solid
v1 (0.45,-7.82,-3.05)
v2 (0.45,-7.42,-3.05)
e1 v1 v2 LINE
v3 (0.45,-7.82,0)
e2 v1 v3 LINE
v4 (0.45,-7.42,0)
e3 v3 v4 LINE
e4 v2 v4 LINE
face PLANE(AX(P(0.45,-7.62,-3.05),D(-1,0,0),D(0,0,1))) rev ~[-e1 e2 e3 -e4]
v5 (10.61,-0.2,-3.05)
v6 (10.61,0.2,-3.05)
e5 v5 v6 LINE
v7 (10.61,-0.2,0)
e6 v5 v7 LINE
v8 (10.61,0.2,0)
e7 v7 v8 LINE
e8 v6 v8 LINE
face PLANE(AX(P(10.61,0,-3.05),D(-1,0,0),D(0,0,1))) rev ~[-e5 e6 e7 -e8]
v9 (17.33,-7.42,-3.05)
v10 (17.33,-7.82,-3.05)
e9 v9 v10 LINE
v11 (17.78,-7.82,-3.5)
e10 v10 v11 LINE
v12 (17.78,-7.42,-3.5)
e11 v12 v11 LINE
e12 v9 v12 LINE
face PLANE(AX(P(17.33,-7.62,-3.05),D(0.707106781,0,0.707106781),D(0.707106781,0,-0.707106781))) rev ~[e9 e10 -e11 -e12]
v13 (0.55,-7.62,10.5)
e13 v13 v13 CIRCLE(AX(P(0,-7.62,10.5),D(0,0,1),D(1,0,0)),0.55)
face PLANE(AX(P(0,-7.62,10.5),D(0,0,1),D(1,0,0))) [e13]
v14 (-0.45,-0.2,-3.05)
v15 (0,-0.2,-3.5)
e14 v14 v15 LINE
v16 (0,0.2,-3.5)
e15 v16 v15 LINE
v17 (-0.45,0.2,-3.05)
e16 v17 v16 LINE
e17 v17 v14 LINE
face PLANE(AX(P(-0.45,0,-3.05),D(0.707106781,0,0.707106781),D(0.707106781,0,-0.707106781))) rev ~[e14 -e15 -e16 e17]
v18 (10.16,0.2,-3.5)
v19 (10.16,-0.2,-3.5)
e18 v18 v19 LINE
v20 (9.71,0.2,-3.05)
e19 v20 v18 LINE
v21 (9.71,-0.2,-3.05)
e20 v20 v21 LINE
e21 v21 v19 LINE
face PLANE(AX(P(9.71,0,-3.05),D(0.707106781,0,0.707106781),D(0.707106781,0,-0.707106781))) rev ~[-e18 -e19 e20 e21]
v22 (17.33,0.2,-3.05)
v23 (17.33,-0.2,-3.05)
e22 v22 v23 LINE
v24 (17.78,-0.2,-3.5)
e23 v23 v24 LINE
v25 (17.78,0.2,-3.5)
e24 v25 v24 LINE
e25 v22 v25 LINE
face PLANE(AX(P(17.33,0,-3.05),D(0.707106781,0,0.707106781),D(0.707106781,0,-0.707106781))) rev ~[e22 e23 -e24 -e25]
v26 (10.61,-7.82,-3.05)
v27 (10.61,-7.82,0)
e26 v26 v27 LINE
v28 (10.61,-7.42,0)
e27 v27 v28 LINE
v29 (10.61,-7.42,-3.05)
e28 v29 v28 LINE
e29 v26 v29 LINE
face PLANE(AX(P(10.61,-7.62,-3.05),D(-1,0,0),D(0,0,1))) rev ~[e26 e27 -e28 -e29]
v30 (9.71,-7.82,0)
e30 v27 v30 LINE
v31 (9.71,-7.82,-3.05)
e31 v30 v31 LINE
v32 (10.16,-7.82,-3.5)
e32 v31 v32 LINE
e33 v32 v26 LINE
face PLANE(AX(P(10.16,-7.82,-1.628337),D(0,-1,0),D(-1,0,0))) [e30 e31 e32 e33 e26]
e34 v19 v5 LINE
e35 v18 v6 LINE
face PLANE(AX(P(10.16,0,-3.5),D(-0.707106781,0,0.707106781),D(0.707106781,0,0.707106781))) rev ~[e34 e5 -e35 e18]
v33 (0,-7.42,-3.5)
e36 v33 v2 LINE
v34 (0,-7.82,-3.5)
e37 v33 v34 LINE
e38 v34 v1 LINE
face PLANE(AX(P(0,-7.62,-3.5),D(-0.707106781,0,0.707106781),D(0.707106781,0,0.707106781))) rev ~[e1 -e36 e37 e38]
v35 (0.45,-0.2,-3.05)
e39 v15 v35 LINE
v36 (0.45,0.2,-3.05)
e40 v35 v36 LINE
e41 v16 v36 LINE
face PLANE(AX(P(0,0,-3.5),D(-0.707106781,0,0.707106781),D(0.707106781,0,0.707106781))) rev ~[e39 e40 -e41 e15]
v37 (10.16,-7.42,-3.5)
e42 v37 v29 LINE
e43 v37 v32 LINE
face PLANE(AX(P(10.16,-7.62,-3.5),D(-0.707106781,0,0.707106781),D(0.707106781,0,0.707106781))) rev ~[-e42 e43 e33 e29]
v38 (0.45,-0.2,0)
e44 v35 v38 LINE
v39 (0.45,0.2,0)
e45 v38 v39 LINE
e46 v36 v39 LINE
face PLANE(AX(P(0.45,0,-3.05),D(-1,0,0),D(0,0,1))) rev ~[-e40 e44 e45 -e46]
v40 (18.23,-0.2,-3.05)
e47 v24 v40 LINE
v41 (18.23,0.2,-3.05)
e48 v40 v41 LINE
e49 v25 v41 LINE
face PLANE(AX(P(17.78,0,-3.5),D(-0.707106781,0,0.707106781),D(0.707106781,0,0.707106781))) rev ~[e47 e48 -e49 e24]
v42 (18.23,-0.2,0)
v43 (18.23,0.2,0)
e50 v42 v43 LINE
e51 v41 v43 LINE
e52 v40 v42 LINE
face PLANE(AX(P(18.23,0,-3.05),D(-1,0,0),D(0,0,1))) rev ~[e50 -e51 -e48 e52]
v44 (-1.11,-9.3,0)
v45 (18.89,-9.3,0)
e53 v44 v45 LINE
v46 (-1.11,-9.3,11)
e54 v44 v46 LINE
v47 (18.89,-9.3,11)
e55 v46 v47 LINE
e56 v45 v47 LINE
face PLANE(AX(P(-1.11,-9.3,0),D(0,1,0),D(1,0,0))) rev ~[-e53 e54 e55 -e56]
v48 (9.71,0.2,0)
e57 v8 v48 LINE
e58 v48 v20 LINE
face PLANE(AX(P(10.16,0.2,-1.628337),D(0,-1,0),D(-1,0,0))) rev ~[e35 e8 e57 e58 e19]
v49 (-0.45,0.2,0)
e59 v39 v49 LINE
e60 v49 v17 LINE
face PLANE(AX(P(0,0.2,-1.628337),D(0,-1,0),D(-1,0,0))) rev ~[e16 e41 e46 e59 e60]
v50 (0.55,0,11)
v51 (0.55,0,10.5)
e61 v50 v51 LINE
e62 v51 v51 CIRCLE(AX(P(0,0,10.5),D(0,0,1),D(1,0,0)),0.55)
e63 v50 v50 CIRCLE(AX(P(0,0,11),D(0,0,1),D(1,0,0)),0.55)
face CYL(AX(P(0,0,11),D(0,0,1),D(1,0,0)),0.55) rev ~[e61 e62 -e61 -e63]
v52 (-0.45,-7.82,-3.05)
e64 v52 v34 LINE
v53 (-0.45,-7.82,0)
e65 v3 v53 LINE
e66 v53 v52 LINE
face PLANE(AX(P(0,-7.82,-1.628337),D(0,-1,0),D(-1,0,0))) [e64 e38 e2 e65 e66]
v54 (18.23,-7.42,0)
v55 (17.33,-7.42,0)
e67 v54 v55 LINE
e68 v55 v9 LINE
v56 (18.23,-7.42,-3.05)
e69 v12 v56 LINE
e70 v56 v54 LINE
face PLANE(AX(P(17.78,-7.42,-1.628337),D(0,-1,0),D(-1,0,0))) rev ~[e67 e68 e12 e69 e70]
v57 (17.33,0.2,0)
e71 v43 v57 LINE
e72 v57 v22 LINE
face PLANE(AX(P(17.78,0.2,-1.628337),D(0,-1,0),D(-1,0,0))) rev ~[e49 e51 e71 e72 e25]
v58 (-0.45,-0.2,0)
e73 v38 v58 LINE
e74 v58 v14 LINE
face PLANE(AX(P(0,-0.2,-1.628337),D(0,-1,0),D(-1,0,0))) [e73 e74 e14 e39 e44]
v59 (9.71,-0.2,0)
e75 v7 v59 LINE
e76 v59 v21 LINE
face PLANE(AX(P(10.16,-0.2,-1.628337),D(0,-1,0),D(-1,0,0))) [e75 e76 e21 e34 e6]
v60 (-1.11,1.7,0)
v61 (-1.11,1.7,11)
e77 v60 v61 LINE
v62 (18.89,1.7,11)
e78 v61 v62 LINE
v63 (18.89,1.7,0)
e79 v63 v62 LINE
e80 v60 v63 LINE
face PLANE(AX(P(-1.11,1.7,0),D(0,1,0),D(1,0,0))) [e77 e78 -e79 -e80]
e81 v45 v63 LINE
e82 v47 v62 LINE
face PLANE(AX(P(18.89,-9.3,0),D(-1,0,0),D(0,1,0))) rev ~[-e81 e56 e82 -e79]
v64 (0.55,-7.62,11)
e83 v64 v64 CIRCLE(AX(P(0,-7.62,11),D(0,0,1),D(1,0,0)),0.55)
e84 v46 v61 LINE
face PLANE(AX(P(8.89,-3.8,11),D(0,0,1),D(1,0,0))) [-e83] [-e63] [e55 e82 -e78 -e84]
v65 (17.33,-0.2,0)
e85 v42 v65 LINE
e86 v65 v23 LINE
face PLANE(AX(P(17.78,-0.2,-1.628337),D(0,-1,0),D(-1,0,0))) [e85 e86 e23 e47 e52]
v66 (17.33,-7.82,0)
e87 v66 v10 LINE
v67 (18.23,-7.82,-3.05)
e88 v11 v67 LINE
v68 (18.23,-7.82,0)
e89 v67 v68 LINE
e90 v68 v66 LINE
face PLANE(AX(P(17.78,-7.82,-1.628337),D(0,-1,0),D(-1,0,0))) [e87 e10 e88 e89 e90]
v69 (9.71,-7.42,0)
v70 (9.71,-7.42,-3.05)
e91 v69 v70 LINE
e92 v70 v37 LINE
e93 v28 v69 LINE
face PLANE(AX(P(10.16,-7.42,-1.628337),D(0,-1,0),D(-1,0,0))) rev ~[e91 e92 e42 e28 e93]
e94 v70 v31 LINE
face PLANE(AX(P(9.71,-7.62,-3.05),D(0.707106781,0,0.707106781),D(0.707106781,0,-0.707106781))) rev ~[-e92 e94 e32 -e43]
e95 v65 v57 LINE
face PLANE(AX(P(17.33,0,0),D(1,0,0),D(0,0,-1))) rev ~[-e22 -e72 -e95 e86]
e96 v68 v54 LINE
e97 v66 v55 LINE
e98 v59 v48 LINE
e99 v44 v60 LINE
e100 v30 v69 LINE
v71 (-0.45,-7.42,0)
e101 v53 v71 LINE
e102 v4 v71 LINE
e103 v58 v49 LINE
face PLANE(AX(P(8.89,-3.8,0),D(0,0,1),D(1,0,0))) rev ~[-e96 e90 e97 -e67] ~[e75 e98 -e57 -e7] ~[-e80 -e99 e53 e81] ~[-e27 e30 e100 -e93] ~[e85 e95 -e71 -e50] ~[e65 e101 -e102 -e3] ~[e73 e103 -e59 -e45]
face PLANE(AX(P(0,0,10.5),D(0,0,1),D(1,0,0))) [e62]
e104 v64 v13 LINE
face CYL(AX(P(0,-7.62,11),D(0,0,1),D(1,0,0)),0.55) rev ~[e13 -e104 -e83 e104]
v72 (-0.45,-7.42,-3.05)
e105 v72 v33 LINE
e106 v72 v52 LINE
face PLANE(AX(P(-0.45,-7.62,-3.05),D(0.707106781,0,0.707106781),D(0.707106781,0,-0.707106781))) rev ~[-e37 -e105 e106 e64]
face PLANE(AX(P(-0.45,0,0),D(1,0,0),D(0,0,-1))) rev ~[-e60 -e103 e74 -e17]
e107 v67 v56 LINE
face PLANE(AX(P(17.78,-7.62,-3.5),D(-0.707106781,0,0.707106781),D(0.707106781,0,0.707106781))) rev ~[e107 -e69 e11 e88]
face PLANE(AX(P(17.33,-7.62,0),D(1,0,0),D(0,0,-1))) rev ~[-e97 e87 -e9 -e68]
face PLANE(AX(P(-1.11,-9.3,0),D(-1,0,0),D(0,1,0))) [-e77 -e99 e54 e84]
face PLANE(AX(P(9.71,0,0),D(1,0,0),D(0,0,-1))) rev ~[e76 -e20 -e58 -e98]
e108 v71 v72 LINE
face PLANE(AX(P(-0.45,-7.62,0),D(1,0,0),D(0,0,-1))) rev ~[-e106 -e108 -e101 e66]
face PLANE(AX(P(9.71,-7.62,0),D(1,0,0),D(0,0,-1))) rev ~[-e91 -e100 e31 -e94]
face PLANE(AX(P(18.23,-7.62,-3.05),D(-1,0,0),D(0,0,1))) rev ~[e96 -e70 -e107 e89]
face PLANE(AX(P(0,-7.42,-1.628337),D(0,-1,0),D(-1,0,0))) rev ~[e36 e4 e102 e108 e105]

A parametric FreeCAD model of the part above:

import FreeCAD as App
import Part
import Sketcher
from FreeCAD import Vector
Q = App.Units.Quantity

doc = App.newDocument("Part")
body = doc.addObject("PartDesign::Body", "Body")

sketch1 = body.newObject("Sketcher::SketchObject", "Sketch")
sketch1.AttachmentSupport = (doc.getObject("XY_Plane"), [""])
sketch1.MapMode = "FlatFace"
sketch1.addGeometry([
    Part.LineSegment(Vector(-1, 2, 0), Vector(-1, -9, 0)),
    Part.LineSegment(Vector(-1, -9, 0), Vector(19, -9, 0)),
    Part.LineSegment(Vector(19, -9, 0), Vector(19, 2, 0)),
    Part.LineSegment(Vector(19, 2, 0), Vector(-1, 2, 0)),
], False)
sketch1.addConstraint([
    Sketcher.Constraint("Coincident", 0, 2, 1, 1),
    Sketcher.Constraint("Coincident", 1, 2, 2, 1),
    Sketcher.Constraint("Coincident", 2, 2, 3, 1),
    Sketcher.Constraint("Coincident", 3, 2, 0, 1),
    Sketcher.Constraint("Vertical", 0),
    Sketcher.Constraint("Horizontal", 1),
    Sketcher.Constraint("Vertical", 2),
    Sketcher.Constraint("Horizontal", 3),
    Sketcher.Constraint("DistanceX", 1, 1, 1, 2, Q("20 mm")),
    Sketcher.Constraint("DistanceY", 0, 2, 0, 1, Q("11 mm")),
    Sketcher.Constraint("DistanceY", 0, 2, -1, 1, Q("9.3 mm")),
    Sketcher.Constraint("DistanceX", 0, 2, -1, 1, Q("1.11 mm")),
])
pad1 = body.newObject("PartDesign::Pad", "Pad")
pad1.Profile = sketch1
pad1.Length = 11

sketch2 = body.newObject("Sketcher::SketchObject", "Sketch001")
sketch2.AttachmentSupport = (doc.getObject("XY_Plane"), [""])
sketch2.MapMode = "FlatFace"
sketch2.AttachmentOffset = App.Placement(Vector(0, 0, 11), App.Rotation())
sketch2.addGeometry([
    Part.Circle(Vector(0, 0, 0), Vector(0, 0, 1), 0.6),
    Part.Circle(Vector(0, -7.6, 0), Vector(0, 0, 1), 0.6),
], False)
sketch2.addConstraint([
    Sketcher.Constraint("Coincident", 0, 3, -1, 1),
    Sketcher.Constraint("Equal", 0, 1),
    Sketcher.Constraint("PointOnObject", 1, 3, -2),
    Sketcher.Constraint("Diameter", 0, Q("1.1 mm")),
    Sketcher.Constraint("DistanceY", 1, 3, -1, 1, Q("7.62 mm")),
])
pocket1 = body.newObject("PartDesign::Pocket", "Pocket")
pocket1.Profile = sketch2
pocket1.Length = 0.5

sketch3 = body.newObject("Sketcher::SketchObject", "Sketch002")
sketch3.AttachmentSupport = (doc.getObject("XZ_Plane"), [""])
sketch3.MapMode = "FlatFace"
sketch3.addGeometry([
    Part.LineSegment(Vector(-0.5, -3, 0), Vector(-0.5, 0, 0)),
    Part.LineSegment(Vector(-0.5, 0, 0), Vector(0.5, 0, 0)),
    Part.LineSegment(Vector(0.5, 0, 0), Vector(0.5, -3, 0)),
    Part.LineSegment(Vector(0.5, -3, 0), Vector(0, -3.5, 0)),
    Part.LineSegment(Vector(0, -3.5, 0), Vector(-0.5, -3, 0)),
], False)
sketch3.addConstraint([
    Sketcher.Constraint("Coincident", 0, 2, 1, 1),
    Sketcher.Constraint("Coincident", 1, 2, 2, 1),
    Sketcher.Constraint("Coincident", 2, 2, 3, 1),
    Sketcher.Constraint("Coincident", 3, 2, 4, 1),
    Sketcher.Constraint("Coincident", 4, 2, 0, 1),
    Sketcher.Constraint("Vertical", 0),
    Sketcher.Constraint("Horizontal", 1),
    Sketcher.Constraint("Vertical", 2),
    Sketcher.Constraint("Symmetric", 0, 2, 1, 2, -1, 1),
    Sketcher.Constraint("PointOnObject", 3, 2, -2),
    Sketcher.Constraint("Perpendicular", 3, 4),
    Sketcher.Constraint("Horizontal", 2, 2, 4, 2),
    Sketcher.Constraint("DistanceX", 1, 1, 1, 2, Q("0.9 mm")),
    Sketcher.Constraint("DistanceY", 0, 1, 0, 2, Q("3.05 mm")),
])
pad2 = body.newObject("PartDesign::Pad", "Pad001")
pad2.Profile = sketch3
pad2.Length = 0.4
pad2.Midplane = True
doc.recompute()

linearpattern = body.newObject("PartDesign::LinearPattern", "LinearPattern")
linearpattern.Originals = [pad2]
linearpattern.Direction = (doc.getObject("X_Axis"), [""])
linearpattern.Mode = "offset"
linearpattern.Offset = 10.16
linearpattern.Occurrences = 2
body.Tip = linearpattern
doc.recompute()

linearpattern2 = body.newObject("PartDesign::LinearPattern", "LinearPattern001")
linearpattern2.Originals = [pad2]
linearpattern2.Direction = (doc.getObject("X_Axis"), [""])
linearpattern2.Mode = "offset"
linearpattern2.Offset = 17.78
linearpattern2.Occurrences = 2
body.Tip = linearpattern2
doc.recompute()

linearpattern3 = body.newObject("PartDesign::LinearPattern", "LinearPattern002")
linearpattern3.Originals = [pad2]
linearpattern3.Direction = (doc.getObject("Y_Axis"), [""])
linearpattern3.Mode = "offset"
linearpattern3.Offset = 7.62
linearpattern3.Occurrences = 2
linearpattern3.Reversed = True
body.Tip = linearpattern3

sketch4 = body.newObject("Sketcher::SketchObject", "Sketch003")
sketch4.AttachmentSupport = (doc.getObject("XZ_Plane"), [""])
sketch4.MapMode = "FlatFace"
sketch4.AttachmentOffset = App.Placement(Vector(0, 0, 7.62), App.Rotation())
sketch4.addGeometry([
    Part.LineSegment(Vector(9.7, -3, 0), Vector(9.7, 0, 0)),
    Part.LineSegment(Vector(9.7, 0, 0), Vector(10.6, 0, 0)),
    Part.LineSegment(Vector(10.6, 0, 0), Vector(10.6, -3, 0)),
    Part.LineSegment(Vector(10.6, -3, 0), Vector(10.2, -3.5, 0)),
    Part.LineSegment(Vector(10.2, -3.5, 0), Vector(9.7, -3, 0)),
], False)
sketch4.addConstraint([
    Sketcher.Constraint("Coincident", 0, 2, 1, 1),
    Sketcher.Constraint("Coincident", 1, 2, 2, 1),
    Sketcher.Constraint("Coincident", 2, 2, 3, 1),
    Sketcher.Constraint("Coincident", 3, 2, 4, 1),
    Sketcher.Constraint("Coincident", 4, 2, 0, 1),
    Sketcher.Constraint("Vertical", 0),
    Sketcher.Constraint("Horizontal", 1),
    Sketcher.Constraint("Vertical", 2),
    Sketcher.Constraint("PointOnObject", 0, 2, -1),
    Sketcher.Constraint("Perpendicular", 3, 4),
    Sketcher.Constraint("Horizontal", 2, 2, 4, 2),
    Sketcher.Constraint("Equal", 3, 4),
    Sketcher.Constraint("DistanceX", 1, 1, 1, 2, Q("0.9 mm")),
    Sketcher.Constraint("DistanceY", 0, 1, 0, 2, Q("3.05 mm")),
    Sketcher.Constraint("DistanceX", -1, 1, 0, 2, Q("9.71 mm")),
])
pad3 = body.newObject("PartDesign::Pad", "Pad002")
pad3.Profile = sketch4
pad3.Length = 0.4
pad3.Midplane = True

sketch5 = body.newObject("Sketcher::SketchObject", "Sketch004")
sketch5.AttachmentSupport = (doc.getObject("XZ_Plane"), [""])
sketch5.MapMode = "FlatFace"
sketch5.AttachmentOffset = App.Placement(Vector(0, 0, 7.62), App.Rotation())
sketch5.addGeometry([
    Part.LineSegment(Vector(17.3, -3, 0), Vector(17.3, 0, 0)),
    Part.LineSegment(Vector(17.3, 0, 0), Vector(18.2, 0, 0)),
    Part.LineSegment(Vector(18.2, 0, 0), Vector(18.2, -3, 0)),
    Part.LineSegment(Vector(18.2, -3, 0), Vector(17.8, -3.5, 0)),
    Part.LineSegment(Vector(17.8, -3.5, 0), Vector(17.3, -3, 0)),
], False)
sketch5.addConstraint([
    Sketcher.Constraint("Coincident", 0, 2, 1, 1),
    Sketcher.Constraint("Coincident", 1, 2, 2, 1),
    Sketcher.Constraint("Coincident", 2, 2, 3, 1),
    Sketcher.Constraint("Coincident", 3, 2, 4, 1),
    Sketcher.Constraint("Coincident", 4, 2, 0, 1),
    Sketcher.Constraint("Vertical", 0),
    Sketcher.Constraint("Horizontal", 1),
    Sketcher.Constraint("Vertical", 2),
    Sketcher.Constraint("PointOnObject", 0, 2, -1),
    Sketcher.Constraint("Perpendicular", 3, 4),
    Sketcher.Constraint("Horizontal", 2, 2, 4, 2),
    Sketcher.Constraint("Equal", 3, 4),
    Sketcher.Constraint("DistanceX", 1, 1, 1, 2, Q("0.9 mm")),
    Sketcher.Constraint("DistanceY", 0, 1, 0, 2, Q("3.05 mm")),
    Sketcher.Constraint("DistanceX", -1, 1, 0, 2, Q("17.33 mm")),
])
pad4 = body.newObject("PartDesign::Pad", "Pad003")
pad4.Profile = sketch5
pad4.Length = 0.4
pad4.Midplane = True

doc.recompute()
